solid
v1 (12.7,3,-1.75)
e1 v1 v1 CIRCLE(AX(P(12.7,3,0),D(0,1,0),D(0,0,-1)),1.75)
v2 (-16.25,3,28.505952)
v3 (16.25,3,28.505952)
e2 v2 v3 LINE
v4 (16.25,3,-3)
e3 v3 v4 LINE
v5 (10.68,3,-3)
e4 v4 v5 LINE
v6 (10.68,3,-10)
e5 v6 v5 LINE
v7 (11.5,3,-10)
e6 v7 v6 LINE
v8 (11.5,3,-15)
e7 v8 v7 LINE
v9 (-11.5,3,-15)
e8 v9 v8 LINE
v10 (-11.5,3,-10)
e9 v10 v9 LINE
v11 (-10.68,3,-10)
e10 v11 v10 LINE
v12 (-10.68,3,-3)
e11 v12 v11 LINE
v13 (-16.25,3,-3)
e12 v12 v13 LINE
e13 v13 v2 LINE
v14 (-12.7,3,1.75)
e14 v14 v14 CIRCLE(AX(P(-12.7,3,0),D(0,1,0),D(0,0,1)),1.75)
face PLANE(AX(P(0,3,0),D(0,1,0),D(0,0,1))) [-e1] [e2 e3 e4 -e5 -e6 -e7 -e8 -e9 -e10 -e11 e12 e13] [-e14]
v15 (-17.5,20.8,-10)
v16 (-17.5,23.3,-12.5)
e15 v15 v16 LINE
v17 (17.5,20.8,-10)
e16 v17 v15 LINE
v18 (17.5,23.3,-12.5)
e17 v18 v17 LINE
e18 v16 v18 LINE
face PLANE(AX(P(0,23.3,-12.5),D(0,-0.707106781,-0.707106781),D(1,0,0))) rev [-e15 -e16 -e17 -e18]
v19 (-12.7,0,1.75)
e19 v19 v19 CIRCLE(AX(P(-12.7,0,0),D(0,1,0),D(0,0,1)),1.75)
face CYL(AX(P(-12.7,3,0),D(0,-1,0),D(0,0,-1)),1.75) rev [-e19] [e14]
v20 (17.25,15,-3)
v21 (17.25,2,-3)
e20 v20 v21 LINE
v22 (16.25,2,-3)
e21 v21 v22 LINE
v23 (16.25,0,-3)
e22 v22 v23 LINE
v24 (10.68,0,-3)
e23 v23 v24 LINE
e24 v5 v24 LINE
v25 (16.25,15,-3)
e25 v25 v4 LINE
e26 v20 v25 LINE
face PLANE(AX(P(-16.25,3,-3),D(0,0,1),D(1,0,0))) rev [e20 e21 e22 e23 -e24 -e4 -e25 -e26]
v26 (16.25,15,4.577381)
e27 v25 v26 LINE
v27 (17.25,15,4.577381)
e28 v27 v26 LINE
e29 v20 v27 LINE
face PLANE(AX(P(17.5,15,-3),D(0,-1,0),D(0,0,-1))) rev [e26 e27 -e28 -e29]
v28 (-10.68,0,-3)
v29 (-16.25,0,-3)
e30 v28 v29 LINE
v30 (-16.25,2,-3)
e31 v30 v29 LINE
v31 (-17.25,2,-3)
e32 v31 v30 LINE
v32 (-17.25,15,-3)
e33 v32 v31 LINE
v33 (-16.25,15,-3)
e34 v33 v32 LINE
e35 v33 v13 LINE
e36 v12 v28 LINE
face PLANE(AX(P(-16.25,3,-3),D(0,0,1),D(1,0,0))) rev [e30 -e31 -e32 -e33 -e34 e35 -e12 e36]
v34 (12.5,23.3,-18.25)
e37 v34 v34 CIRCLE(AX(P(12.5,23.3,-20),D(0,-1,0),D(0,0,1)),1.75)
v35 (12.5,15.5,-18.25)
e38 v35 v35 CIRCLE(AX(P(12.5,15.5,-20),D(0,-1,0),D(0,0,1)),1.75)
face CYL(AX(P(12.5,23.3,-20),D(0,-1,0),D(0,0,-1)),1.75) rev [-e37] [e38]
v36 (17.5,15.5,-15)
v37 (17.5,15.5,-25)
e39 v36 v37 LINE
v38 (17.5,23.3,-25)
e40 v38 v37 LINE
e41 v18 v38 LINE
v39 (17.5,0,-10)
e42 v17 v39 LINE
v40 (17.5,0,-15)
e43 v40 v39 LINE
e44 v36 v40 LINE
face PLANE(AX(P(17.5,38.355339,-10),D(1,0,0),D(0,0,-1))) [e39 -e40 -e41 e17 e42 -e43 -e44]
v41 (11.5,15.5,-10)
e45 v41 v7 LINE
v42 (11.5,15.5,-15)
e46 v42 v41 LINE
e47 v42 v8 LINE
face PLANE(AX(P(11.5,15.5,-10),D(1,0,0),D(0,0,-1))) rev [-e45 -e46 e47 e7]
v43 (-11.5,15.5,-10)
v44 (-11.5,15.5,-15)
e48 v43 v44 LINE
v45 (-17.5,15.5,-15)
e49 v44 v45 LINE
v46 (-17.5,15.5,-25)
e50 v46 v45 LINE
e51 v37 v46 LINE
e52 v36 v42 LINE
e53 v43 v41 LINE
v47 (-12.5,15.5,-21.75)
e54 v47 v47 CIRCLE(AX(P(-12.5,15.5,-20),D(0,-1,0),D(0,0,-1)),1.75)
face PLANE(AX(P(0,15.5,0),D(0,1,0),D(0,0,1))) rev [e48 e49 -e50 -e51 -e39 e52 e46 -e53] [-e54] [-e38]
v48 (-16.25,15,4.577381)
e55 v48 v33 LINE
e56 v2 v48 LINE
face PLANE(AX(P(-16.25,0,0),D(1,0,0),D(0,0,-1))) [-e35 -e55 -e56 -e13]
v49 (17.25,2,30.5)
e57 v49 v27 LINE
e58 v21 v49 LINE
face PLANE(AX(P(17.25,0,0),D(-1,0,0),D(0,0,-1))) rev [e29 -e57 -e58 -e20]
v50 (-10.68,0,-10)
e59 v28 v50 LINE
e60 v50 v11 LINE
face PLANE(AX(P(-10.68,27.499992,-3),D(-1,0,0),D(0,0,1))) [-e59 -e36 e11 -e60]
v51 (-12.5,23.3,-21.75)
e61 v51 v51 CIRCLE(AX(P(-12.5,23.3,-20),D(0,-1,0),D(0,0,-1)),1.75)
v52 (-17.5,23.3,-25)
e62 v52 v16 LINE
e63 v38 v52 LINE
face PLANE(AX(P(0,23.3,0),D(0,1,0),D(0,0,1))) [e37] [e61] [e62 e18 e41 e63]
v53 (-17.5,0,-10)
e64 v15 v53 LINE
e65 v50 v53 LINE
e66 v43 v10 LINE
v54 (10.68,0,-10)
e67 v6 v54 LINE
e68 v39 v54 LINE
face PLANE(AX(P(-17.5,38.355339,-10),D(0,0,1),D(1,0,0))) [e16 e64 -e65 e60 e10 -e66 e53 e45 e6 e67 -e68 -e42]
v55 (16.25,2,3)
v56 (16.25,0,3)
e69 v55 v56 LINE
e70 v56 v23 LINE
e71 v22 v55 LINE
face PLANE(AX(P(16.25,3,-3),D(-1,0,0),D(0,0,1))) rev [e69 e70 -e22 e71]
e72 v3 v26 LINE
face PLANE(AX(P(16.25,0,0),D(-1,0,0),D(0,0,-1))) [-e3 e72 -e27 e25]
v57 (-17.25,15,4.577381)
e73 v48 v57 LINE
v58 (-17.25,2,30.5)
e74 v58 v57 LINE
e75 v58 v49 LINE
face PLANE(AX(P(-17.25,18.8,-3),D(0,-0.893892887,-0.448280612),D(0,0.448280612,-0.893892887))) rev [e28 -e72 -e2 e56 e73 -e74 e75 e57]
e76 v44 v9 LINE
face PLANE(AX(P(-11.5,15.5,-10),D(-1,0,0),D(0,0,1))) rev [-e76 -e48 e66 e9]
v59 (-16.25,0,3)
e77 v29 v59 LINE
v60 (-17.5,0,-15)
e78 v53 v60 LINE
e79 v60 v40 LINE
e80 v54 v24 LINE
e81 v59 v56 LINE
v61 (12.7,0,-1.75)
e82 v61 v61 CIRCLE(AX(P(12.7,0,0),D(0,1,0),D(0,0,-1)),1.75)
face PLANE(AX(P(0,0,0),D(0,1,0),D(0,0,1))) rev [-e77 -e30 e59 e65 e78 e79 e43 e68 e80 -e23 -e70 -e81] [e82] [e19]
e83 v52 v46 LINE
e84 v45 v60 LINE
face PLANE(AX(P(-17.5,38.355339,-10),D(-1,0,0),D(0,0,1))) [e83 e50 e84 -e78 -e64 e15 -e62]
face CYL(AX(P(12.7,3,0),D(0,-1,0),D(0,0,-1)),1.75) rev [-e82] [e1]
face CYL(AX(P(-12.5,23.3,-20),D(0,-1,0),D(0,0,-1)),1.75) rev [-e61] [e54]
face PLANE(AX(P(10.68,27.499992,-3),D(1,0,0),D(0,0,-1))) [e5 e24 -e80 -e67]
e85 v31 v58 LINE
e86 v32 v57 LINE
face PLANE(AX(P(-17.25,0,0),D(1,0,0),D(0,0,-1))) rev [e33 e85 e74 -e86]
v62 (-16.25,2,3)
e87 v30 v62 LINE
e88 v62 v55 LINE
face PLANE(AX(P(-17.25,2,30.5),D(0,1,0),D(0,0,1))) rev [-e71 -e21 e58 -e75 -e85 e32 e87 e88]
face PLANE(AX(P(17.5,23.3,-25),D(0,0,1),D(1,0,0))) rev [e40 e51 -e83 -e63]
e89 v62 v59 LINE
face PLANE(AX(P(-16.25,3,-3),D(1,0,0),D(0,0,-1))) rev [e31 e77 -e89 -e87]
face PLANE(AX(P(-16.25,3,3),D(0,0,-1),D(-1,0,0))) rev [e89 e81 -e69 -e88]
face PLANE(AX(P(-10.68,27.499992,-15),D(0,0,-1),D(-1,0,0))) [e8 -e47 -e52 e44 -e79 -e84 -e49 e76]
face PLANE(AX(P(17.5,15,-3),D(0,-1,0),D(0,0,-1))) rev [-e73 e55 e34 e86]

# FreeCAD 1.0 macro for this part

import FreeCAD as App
import Part
import Sketcher

V = App.Vector


def edges_at(feature, points):
    """Names of the edges that pass closest to the given points."""
    edges = feature.Shape.Edges
    near = lambda p: min(range(len(edges)), key=lambda i: edges[i].distToShape(Part.Vertex(*p))[0])
    return sorted({f"Edge{near(p) + 1}" for p in points})


def add_polygon(sketch, points):
    """Adds a closed chain of lines whose ends are joined by coincident constraints."""
    first, n = sketch.GeometryCount, len(points)
    for a, b in zip(points, points[1:] + points[:1]):
        sketch.addGeometry(Part.LineSegment(App.Vector(*a, 0), App.Vector(*b, 0)), False)
    for i in range(n):
        sketch.addConstraint(Sketcher.Constraint("Coincident", first + i, 2, first + (i + 1) % n, 1))

doc = App.newDocument("Part")
body = doc.addObject("PartDesign::Body", "Body")

# Sketch on XZ plane
sketch1 = doc.addObject("Sketcher::SketchObject", "Sketch")
body.addObject(sketch1)
sketch1.AttachmentSupport = (doc.XZ_Plane, [""])
sketch1.MapMode = "FlatFace"
add_polygon(sketch1, [(-16.25, -3), (-16.25, 3), (16.25, 3), (16.25, -3)])  # lines 0-3
sketch1.addGeometry(Part.Circle(V(-12.7, 0, 0), V(0, 0, 1), 1.75), False)  # 4
sketch1.addGeometry(Part.Circle(V(12.7, 0, 0), V(0, 0, 1), 1.75), False)  # 5
sketch1.addConstraint(Sketcher.Constraint("Vertical", 0))
sketch1.addConstraint(Sketcher.Constraint("Horizontal", 1))
sketch1.addConstraint(Sketcher.Constraint("Vertical", 2))
sketch1.addConstraint(Sketcher.Constraint("Horizontal", 3))
sketch1.addConstraint(Sketcher.Constraint("Equal", 4, 5))
sketch1.addConstraint(Sketcher.Constraint("Symmetric", 4, 3, 5, 3, -1, 1))
sketch1.addConstraint(Sketcher.Constraint("Symmetric", 0, 2, 2, 2, -1, 1))
sketch1.addConstraint(Sketcher.Constraint("PointOnObject", 4, 3, -1))
sketch1.addConstraint(Sketcher.Constraint("Diameter", 4, 3.5))
sketch1.addConstraint(Sketcher.Constraint("DistanceY", 0, 1, 0, 2, 6.0))
sketch1.addConstraint(Sketcher.Constraint("DistanceX", 1, 1, 1, 2, 32.5))
sketch1.addConstraint(Sketcher.Constraint("DistanceX", 4, 3, -1, 1, 12.7))
pad1 = doc.addObject("PartDesign::Pad", "Pad")
body.addObject(pad1)
pad1.Profile = sketch1
pad1.Length = 3
pad1.Reversed = True

# Sketch on XZ plane
sketch2 = doc.addObject("Sketcher::SketchObject", "Sketch001")
body.addObject(sketch2)
sketch2.AttachmentSupport = (doc.XZ_Plane, [""])
sketch2.MapMode = "FlatFace"
add_polygon(sketch2, [(-10.68, -3), (-10.68, -15), (10.68, -15), (10.68, -3)])  # lines 0-3
sketch2.addConstraint(Sketcher.Constraint("Vertical", 0))
sketch2.addConstraint(Sketcher.Constraint("Horizontal", 1))
sketch2.addConstraint(Sketcher.Constraint("Vertical", 2))
sketch2.addConstraint(Sketcher.Constraint("Horizontal", 3))
sketch2.addConstraint(Sketcher.Constraint("DistanceY", 0, 2, 0, 1, 12.0))
sketch2.addConstraint(Sketcher.Constraint("DistanceY", 0, 2, -1, 1, 15.0))
sketch2.addConstraint(Sketcher.Constraint("DistanceX", 1, 1, 1, 2, 21.36))
sketch2.addConstraint(Sketcher.Constraint("DistanceX", 0, 2, -1, 1, 10.68))
pad2 = doc.addObject("PartDesign::Pad", "Pad001")
body.addObject(pad2)
pad2.Profile = sketch2
pad2.Length = 3
pad2.Reversed = True

# Sketch on XZ plane
sketch3 = doc.addObject("Sketcher::SketchObject", "Sketch002")
body.addObject(sketch3)
sketch3.AttachmentSupport = (doc.XZ_Plane, [""])
sketch3.MapMode = "FlatFace"
add_polygon(sketch3, [(-17.5, -10), (-17.5, -15), (17.5, -15), (17.5, -10)])  # lines 0-3
sketch3.addConstraint(Sketcher.Constraint("Vertical", 0))
sketch3.addConstraint(Sketcher.Constraint("Horizontal", 1))
sketch3.addConstraint(Sketcher.Constraint("Vertical", 2))
sketch3.addConstraint(Sketcher.Constraint("Horizontal", 3))
sketch3.addConstraint(Sketcher.Constraint("DistanceX", 1, 1, 1, 2, 35.0))
sketch3.addConstraint(Sketcher.Constraint("DistanceY", 0, 2, 0, 1, 5.0))
sketch3.addConstraint(Sketcher.Constraint("DistanceY", 0, 2, -1, 1, 15.0))
sketch3.addConstraint(Sketcher.Constraint("DistanceX", 0, 2, -1, 1, 17.5))
pad3 = doc.addObject("PartDesign::Pad", "Pad002")
body.addObject(pad3)
pad3.Profile = sketch3
pad3.Length = 3
pad3.Reversed = True

# Sketch on XZ plane
sketch4 = doc.addObject("Sketcher::SketchObject", "Sketch003")
body.addObject(sketch4)
sketch4.AttachmentSupport = (doc.XZ_Plane, [""])
sketch4.MapMode = "FlatFace"
sketch4.AttachmentOffset = App.Placement(V(0, 0, -3), App.Rotation())
add_polygon(sketch4, [(-17.5, -15), (-17.5, -10), (-11.5, -10), (-11.5, -15)])  # lines 0-3
add_polygon(sketch4, [(11.5, -15), (11.5, -10), (17.5, -10), (17.5, -15)])  # lines 4-7
sketch4.addConstraint(Sketcher.Constraint("Vertical", 0))
sketch4.addConstraint(Sketcher.Constraint("Horizontal", 1))
sketch4.addConstraint(Sketcher.Constraint("Vertical", 2))
sketch4.addConstraint(Sketcher.Constraint("Horizontal", 3))
sketch4.addConstraint(Sketcher.Constraint("Vertical", 4))
sketch4.addConstraint(Sketcher.Constraint("Horizontal", 5))
sketch4.addConstraint(Sketcher.Constraint("Vertical", 6))
sketch4.addConstraint(Sketcher.Constraint("Horizontal", 7))
sketch4.addConstraint(Sketcher.Constraint("Symmetric", 1, 2, 4, 2, -2))
sketch4.addConstraint(Sketcher.Constraint("Symmetric", 3, 2, 6, 2, -2))
sketch4.addConstraint(Sketcher.Constraint("DistanceX", 1, 1, 1, 2, 6.0))
sketch4.addConstraint(Sketcher.Constraint("DistanceY", 0, 1, 0, 2, 5.0))
sketch4.addConstraint(Sketcher.Constraint("DistanceY", 0, 2, -1, 1, 10.0))
sketch4.addConstraint(Sketcher.Constraint("DistanceX", 1, 2, 4, 2, 23.0))
pad4 = doc.addObject("PartDesign::Pad", "Pad003")
body.addObject(pad4)
pad4.Profile = sketch4
pad4.Length = 12.5
pad4.Reversed = True

# Sketch on XZ plane
sketch5 = doc.addObject("Sketcher::SketchObject", "Sketch004")
body.addObject(sketch5)
sketch5.AttachmentSupport = (doc.XZ_Plane, [""])
sketch5.MapMode = "FlatFace"
sketch5.AttachmentOffset = App.Placement(V(0, 0, -15.5), App.Rotation())
add_polygon(sketch5, [(-17.5, -25), (-17.5, -10), (17.5, -10), (17.5, -25)])  # lines 0-3
sketch5.addConstraint(Sketcher.Constraint("Vertical", 0))
sketch5.addConstraint(Sketcher.Constraint("Horizontal", 1))
sketch5.addConstraint(Sketcher.Constraint("Vertical", 2))
sketch5.addConstraint(Sketcher.Constraint("Horizontal", 3))
sketch5.addConstraint(Sketcher.Constraint("DistanceX", 1, 1, 1, 2, 35.0))
sketch5.addConstraint(Sketcher.Constraint("DistanceY", 0, 1, 0, 2, 15.0))
sketch5.addConstraint(Sketcher.Constraint("DistanceY", 0, 2, -1, 1, 10.0))
sketch5.addConstraint(Sketcher.Constraint("DistanceX", 0, 2, -1, 1, 17.5))
pad5 = doc.addObject("PartDesign::Pad", "Pad004")
body.addObject(pad5)
pad5.Profile = sketch5
pad5.Length = 7.8
pad5.Reversed = True
doc.recompute()

chamfer = doc.addObject("PartDesign::Chamfer", "Chamfer")
body.addObject(chamfer)
chamfer.Base = (pad5, edges_at(pad5, [(0, 23.3, -10)]))
chamfer.Size = 2.5

# Sketch on XZ plane
sketch6 = doc.addObject("Sketcher::SketchObject", "Sketch005")
body.addObject(sketch6)
sketch6.AttachmentSupport = (doc.XZ_Plane, [""])
sketch6.MapMode = "FlatFace"
sketch6.AttachmentOffset = App.Placement(V(0, 0, -15.5), App.Rotation())
sketch6.addGeometry(Part.Circle(V(-12.5, -20, 0), V(0, 0, 1), 1.75), False)
sketch6.addGeometry(Part.Circle(V(12.5, -20, 0), V(0, 0, 1), 1.75), False)
sketch6.addConstraint(Sketcher.Constraint("Equal", 0, 1))
sketch6.addConstraint(Sketcher.Constraint("Symmetric", 0, 3, 1, 3, -2))
sketch6.addConstraint(Sketcher.Constraint("Diameter", 0, 3.5))
sketch6.addConstraint(Sketcher.Constraint("DistanceY", 0, 3, -1, 1, 20.0))
sketch6.addConstraint(Sketcher.Constraint("DistanceX", 0, 3, 1, 3, 25.0))
pocket1 = doc.addObject("PartDesign::Pocket", "Pocket")
body.addObject(pocket1)
pocket1.Profile = sketch6
pocket1.Type = "ThroughAll"

# Sketch on YZ plane
sketch7 = doc.addObject("Sketcher::SketchObject", "Sketch006")
body.addObject(sketch7)
sketch7.AttachmentSupport = (doc.YZ_Plane, [""])
sketch7.MapMode = "FlatFace"
sketch7.AttachmentOffset = App.Placement(V(0, 0, -16.25), App.Rotation())
add_polygon(sketch7, [(18.8, -3), (2, -3), (2, 30.5)])  # lines 0-2
sketch7.addConstraint(Sketcher.Constraint("Horizontal", 0))
sketch7.addConstraint(Sketcher.Constraint("Vertical", 1))
sketch7.addConstraint(Sketcher.Constraint("DistanceX", 0, 2, 0, 1, 16.8))
sketch7.addConstraint(Sketcher.Constraint("DistanceY", 1, 1, 1, 2, 33.5))
sketch7.addConstraint(Sketcher.Constraint("DistanceX", -1, 1, 0, 2, 2.0))
sketch7.addConstraint(Sketcher.Constraint("DistanceY", 0, 2, -1, 1, 3.0))
pad6 = doc.addObject("PartDesign::Pad", "Pad005")
body.addObject(pad6)
pad6.Profile = sketch7
pad6.Length = 1
pad6.Reversed = True
doc.recompute()

mirrored = doc.addObject("PartDesign::Mirrored", "Mirrored")
body.addObject(mirrored)
mirrored.Originals = [pad6]
mirrored.MirrorPlane = (doc.YZ_Plane, [""])
body.Tip = mirrored

# Sketch on XY plane
sketch8 = doc.addObject("Sketcher::SketchObject", "Sketch007")
body.addObject(sketch8)
sketch8.AttachmentSupport = (doc.XY_Plane, [""])
sketch8.MapMode = "FlatFace"
sketch8.AttachmentOffset = App.Placement(V(0, 0, 3), App.Rotation())
add_polygon(sketch8, [(-16.25, 3), (-16.25, 2), (16.25, 2), (16.25, 3)])  # lines 0-3
sketch8.addConstraint(Sketcher.Constraint("Vertical", 0))
sketch8.addConstraint(Sketcher.Constraint("Horizontal", 1))
sketch8.addConstraint(Sketcher.Constraint("Vertical", 2))
sketch8.addConstraint(Sketcher.Constraint("Horizontal", 3))
sketch8.addConstraint(Sketcher.Constraint("DistanceY", 0, 2, 0, 1, 1.0))
sketch8.addConstraint(Sketcher.Constraint("DistanceX", 1, 1, 1, 2, 32.5))
sketch8.addConstraint(Sketcher.Constraint("DistanceY", -1, 1, 0, 2, 2.0))
sketch8.addConstraint(Sketcher.Constraint("DistanceX", 0, 2, -1, 1, 16.25))
pad7 = doc.addObject("PartDesign::Pad", "Pad006")
body.addObject(pad7)
pad7.Profile = sketch8
pad7.Length = 27.5

# Sketch on YZ plane
sketch9 = doc.addObject("Sketcher::SketchObject", "Sketch008")
body.addObject(sketch9)
sketch9.AttachmentSupport = (doc.YZ_Plane, [""])
sketch9.MapMode = "FlatFace"
sketch9.AttachmentOffset = App.Placement(V(0, 0, 16.25), App.Rotation())
add_polygon(sketch9, [(2, 30.5), (3, 28.505952), (3, 30.5)])  # lines 0-2
sketch9.addConstraint(Sketcher.Constraint("Vertical", 1))
sketch9.addConstraint(Sketcher.Constraint("Horizontal", 2))
sketch9.addConstraint(Sketcher.Constraint("DistanceX", 2, 2, 2, 1, 1.0))
sketch9.addConstraint(Sketcher.Constraint("DistanceX", -1, 1, 0, 2, 3.0))
sketch9.addConstraint(Sketcher.Constraint("DistanceY", -1, 1, 1, 2, 30.5))
sketch9.addConstraint(Sketcher.Constraint("DistanceY", 1, 1, 1, 2, 1.994048))
pocket2 = doc.addObject("PartDesign::Pocket", "Pocket001")
body.addObject(pocket2)
pocket2.Profile = sketch9
pocket2.Length = 33.5

# Sketch on YZ plane
sketch10 = doc.addObject("Sketcher::SketchObject", "Sketch009")
body.addObject(sketch10)
sketch10.AttachmentSupport = (doc.YZ_Plane, [""])
sketch10.MapMode = "FlatFace"
sketch10.AttachmentOffset = App.Placement(V(0, 0, -17.25), App.Rotation())
add_polygon(sketch10, [(15, -3), (15, 4.577381), (18.8, -3)])  # lines 0-2
sketch10.addConstraint(Sketcher.Constraint("Vertical", 0))
sketch10.addConstraint(Sketcher.Constraint("Horizontal", 2))
sketch10.addConstraint(Sketcher.Constraint("DistanceX", 2, 2, 2, 1, 3.8))
sketch10.addConstraint(Sketcher.Constraint("DistanceX", -1, 1, 0, 2, 15.0))
sketch10.addConstraint(Sketcher.Constraint("DistanceY", 1, 2, -1, 1, 3.0))
sketch10.addConstraint(Sketcher.Constraint("DistanceY", 0, 1, 0, 2, 7.577381))
pocket3 = doc.addObject("PartDesign::Pocket", "Pocket002")
body.addObject(pocket3)
pocket3.Profile = sketch10
pocket3.Type = "ThroughAll"
pocket3.Reversed = True

doc.recompute()
